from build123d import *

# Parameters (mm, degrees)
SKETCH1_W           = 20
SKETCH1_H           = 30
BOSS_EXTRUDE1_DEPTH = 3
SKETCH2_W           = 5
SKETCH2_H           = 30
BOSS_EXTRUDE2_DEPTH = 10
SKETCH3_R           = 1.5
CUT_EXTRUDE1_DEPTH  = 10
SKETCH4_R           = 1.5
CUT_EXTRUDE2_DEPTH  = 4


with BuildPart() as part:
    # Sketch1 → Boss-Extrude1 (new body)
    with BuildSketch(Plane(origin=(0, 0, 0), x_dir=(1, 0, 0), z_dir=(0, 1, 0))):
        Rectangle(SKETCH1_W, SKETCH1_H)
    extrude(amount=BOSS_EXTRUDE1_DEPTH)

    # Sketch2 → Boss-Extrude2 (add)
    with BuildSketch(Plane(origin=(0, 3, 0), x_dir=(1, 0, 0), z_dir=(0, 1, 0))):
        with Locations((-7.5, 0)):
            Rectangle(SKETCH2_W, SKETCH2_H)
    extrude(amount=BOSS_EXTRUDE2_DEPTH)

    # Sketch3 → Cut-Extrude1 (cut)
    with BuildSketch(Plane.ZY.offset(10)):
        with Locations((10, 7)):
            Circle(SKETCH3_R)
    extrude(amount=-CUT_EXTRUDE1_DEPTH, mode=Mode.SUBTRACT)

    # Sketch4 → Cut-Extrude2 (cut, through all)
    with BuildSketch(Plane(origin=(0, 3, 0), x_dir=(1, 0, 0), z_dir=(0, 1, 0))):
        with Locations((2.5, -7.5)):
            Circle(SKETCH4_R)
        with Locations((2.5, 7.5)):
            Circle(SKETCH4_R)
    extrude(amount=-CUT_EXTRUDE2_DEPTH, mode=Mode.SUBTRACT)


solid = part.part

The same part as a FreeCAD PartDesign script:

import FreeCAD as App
import Part
import Sketcher
from FreeCAD import Vector
Q = App.Units.Quantity


def add_polygon(sketch, points):
    """Adds a closed chain of lines whose ends are joined by coincident constraints."""
    first, n = sketch.GeometryCount, len(points)
    for a, b in zip(points, points[1:] + points[:1]):
        sketch.addGeometry(Part.LineSegment(App.Vector(*a, 0), App.Vector(*b, 0)), False)
    for i in range(n):
        sketch.addConstraint(Sketcher.Constraint("Coincident", first + i, 2, first + (i + 1) % n, 1))

doc = App.newDocument("Part")
body = doc.addObject("PartDesign::Body", "Body")

# Sketch on XZ plane
sketch1 = doc.addObject("Sketcher::SketchObject", "Sketch")
body.addObject(sketch1)
sketch1.AttachmentSupport = (doc.XZ_Plane, [""])
sketch1.MapMode = "FlatFace"
add_polygon(sketch1, [(-10, -15), (-10, 15), (10, 15), (10, -15)])  # lines 0-3
sketch1.addConstraint(Sketcher.Constraint("Vertical", 0))
sketch1.addConstraint(Sketcher.Constraint("Horizontal", 1))
sketch1.addConstraint(Sketcher.Constraint("Vertical", 2))
sketch1.addConstraint(Sketcher.Constraint("Horizontal", 3))
sketch1.addConstraint(Sketcher.Constraint("Symmetric", 0, 2, 2, 2, -1, 1))
sketch1.addConstraint(Sketcher.Constraint("DistanceX", 1, 1, 1, 2, Q("20 mm")))
sketch1.addConstraint(Sketcher.Constraint("DistanceY", 0, 1, 0, 2, Q("30 mm")))
pad1 = doc.addObject("PartDesign::Pad", "Pad")
body.addObject(pad1)
pad1.Profile = sketch1
pad1.Length = 3
pad1.Reversed = True

# Sketch on XZ plane
sketch2 = doc.addObject("Sketcher::SketchObject", "Sketch001")
body.addObject(sketch2)
sketch2.AttachmentSupport = (doc.XZ_Plane, [""])
sketch2.MapMode = "FlatFace"
sketch2.AttachmentOffset = App.Placement(Vector(0, 0, -3), App.Rotation())
add_polygon(sketch2, [(-10, -15), (-10, 15), (-5, 15), (-5, -15)])  # lines 0-3
sketch2.addConstraint(Sketcher.Constraint("Vertical", 0))
sketch2.addConstraint(Sketcher.Constraint("Horizontal", 1))
sketch2.addConstraint(Sketcher.Constraint("Vertical", 2))
sketch2.addConstraint(Sketcher.Constraint("Horizontal", 3))
sketch2.addConstraint(Sketcher.Constraint("DistanceX", 1, 1, 1, 2, Q("5 mm")))
sketch2.addConstraint(Sketcher.Constraint("DistanceY", 0, 1, 0, 2, Q("30 mm")))
sketch2.addConstraint(Sketcher.Constraint("DistanceX", 0, 2, -1, 1, Q("10 mm")))
sketch2.addConstraint(Sketcher.Constraint("DistanceY", -1, 1, 0, 2, Q("15 mm")))
pad2 = doc.addObject("PartDesign::Pad", "Pad001")
body.addObject(pad2)
pad2.Profile = sketch2
pad2.Length = 10
pad2.Reversed = True

# Sketch on YZ plane
sketch3 = doc.addObject("Sketcher::SketchObject", "Sketch002")
body.addObject(sketch3)
sketch3.AttachmentSupport = (doc.YZ_Plane, [""])
sketch3.MapMode = "FlatFace"
sketch3.AttachmentOffset = App.Placement(Vector(0, 0, -10), App.Rotation())
sketch3.addGeometry(Part.Circle(Vector(7, 10, 0), Vector(0, 0, 1), 1.5), False)
sketch3.addConstraint(Sketcher.Constraint("Diameter", 0, Q("3 mm")))
sketch3.addConstraint(Sketcher.Constraint("DistanceX", -1, 1, 0, 3, Q("7 mm")))
sketch3.addConstraint(Sketcher.Constraint("DistanceY", -1, 1, 0, 3, Q("10 mm")))
pocket1 = doc.addObject("PartDesign::Pocket", "Pocket")
body.addObject(pocket1)
pocket1.Profile = sketch3
pocket1.Length = 10
pocket1.Reversed = True

# Sketch on XZ plane
sketch4 = doc.addObject("Sketcher::SketchObject", "Sketch003")
body.addObject(sketch4)
sketch4.AttachmentSupport = (doc.XZ_Plane, [""])
sketch4.MapMode = "FlatFace"
sketch4.AttachmentOffset = App.Placement(Vector(0, 0, -3), App.Rotation())
sketch4.addGeometry(Part.Circle(Vector(2.5, 7.5, 0), Vector(0, 0, 1), 1.5), False)
sketch4.addGeometry(Part.Circle(Vector(2.5, -7.5, 0), Vector(0, 0, 1), 1.5), False)
sketch4.addConstraint(Sketcher.Constraint("Equal", 0, 1))
sketch4.addConstraint(Sketcher.Constraint("Symmetric", 0, 3, 1, 3, -1))
sketch4.addConstraint(Sketcher.Constraint("Diameter", 0, Q("3 mm")))
sketch4.addConstraint(Sketcher.Constraint("DistanceY", 1, 3, 0, 3, Q("15 mm")))
sketch4.addConstraint(Sketcher.Constraint("DistanceX", -1, 1, 0, 3, Q("2.5 mm")))
pocket2 = doc.addObject("PartDesign::Pocket", "Pocket001")
body.addObject(pocket2)
pocket2.Profile = sketch4
pocket2.Type = "ThroughAll"
pocket2.Reversed = True

doc.recompute()
